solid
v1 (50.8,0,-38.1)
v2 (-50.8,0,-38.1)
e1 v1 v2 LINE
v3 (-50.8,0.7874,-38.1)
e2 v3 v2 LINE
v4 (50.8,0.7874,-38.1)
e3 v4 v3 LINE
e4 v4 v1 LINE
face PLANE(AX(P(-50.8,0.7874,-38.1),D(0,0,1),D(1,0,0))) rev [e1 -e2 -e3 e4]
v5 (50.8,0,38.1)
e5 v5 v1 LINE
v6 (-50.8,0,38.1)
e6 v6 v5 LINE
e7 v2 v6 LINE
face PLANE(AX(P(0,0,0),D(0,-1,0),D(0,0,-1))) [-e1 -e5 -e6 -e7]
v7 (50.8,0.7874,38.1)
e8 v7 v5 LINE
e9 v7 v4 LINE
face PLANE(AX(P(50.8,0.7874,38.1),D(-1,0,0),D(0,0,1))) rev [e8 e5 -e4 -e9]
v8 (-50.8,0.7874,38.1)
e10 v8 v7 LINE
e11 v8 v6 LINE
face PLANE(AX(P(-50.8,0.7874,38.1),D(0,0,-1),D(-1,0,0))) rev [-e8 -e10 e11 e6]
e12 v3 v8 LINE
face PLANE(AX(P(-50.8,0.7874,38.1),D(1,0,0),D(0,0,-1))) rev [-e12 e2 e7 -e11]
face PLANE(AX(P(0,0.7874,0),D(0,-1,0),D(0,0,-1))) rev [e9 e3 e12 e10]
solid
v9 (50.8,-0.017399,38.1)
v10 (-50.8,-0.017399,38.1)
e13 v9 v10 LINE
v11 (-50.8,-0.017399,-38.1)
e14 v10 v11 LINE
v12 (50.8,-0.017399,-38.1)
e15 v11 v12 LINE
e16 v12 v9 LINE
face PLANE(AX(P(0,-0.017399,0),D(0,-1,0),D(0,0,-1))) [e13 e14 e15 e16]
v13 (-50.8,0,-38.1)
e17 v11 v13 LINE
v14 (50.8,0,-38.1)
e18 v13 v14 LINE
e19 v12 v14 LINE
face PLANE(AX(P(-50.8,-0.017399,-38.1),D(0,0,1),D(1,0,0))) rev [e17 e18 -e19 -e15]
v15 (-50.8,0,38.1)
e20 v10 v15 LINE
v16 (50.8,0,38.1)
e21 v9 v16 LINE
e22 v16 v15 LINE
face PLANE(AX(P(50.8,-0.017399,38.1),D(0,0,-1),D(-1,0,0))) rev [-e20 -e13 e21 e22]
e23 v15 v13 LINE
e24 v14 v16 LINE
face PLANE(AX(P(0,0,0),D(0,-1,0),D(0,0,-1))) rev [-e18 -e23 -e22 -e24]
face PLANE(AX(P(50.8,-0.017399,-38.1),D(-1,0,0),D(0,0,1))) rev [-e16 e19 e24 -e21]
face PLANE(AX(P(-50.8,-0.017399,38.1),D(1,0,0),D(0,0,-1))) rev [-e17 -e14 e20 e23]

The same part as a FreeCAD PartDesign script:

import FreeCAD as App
import Part
import Sketcher
from FreeCAD import Vector
Q = App.Units.Quantity

doc = App.newDocument("Part")
body = doc.addObject("PartDesign::Body", "Body")

sketch1 = body.newObject("Sketcher::SketchObject", "Sketch")
sketch1.AttachmentSupport = (doc.getObject("XZ_Plane"), [""])
sketch1.MapMode = "FlatFace"
sketch1.addGeometry(Part.LineSegment(Vector(-51, -38, 0), Vector(-51, 38, 0)), False)
sketch1.addGeometry(Part.LineSegment(Vector(-51, 38, 0), Vector(51, 38, 0)), False)
sketch1.addGeometry(Part.LineSegment(Vector(51, 38, 0), Vector(51, -38, 0)), False)
sketch1.addGeometry(Part.LineSegment(Vector(51, -38, 0), Vector(-51, -38, 0)), False)
sketch1.addConstraint(Sketcher.Constraint("Coincident", 0, 2, 1, 1))
sketch1.addConstraint(Sketcher.Constraint("Coincident", 1, 2, 2, 1))
sketch1.addConstraint(Sketcher.Constraint("Coincident", 2, 2, 3, 1))
sketch1.addConstraint(Sketcher.Constraint("Coincident", 3, 2, 0, 1))
sketch1.addConstraint(Sketcher.Constraint("Vertical", 0))
sketch1.addConstraint(Sketcher.Constraint("Horizontal", 1))
sketch1.addConstraint(Sketcher.Constraint("Vertical", 2))
sketch1.addConstraint(Sketcher.Constraint("Horizontal", 3))
sketch1.addConstraint(Sketcher.Constraint("Symmetric", 0, 2, 2, 2, -1, 1))
sketch1.addConstraint(Sketcher.Constraint("DistanceX", 1, 1, 1, 2, Q("4 in")))
sketch1.addConstraint(Sketcher.Constraint("DistanceY", 0, 1, 0, 2, Q("3 in")))
pad1 = body.newObject("PartDesign::Pad", "Pad")
pad1.Profile = sketch1
pad1.Length = Q("0.031 in")
pad1.Reversed = True
body2 = doc.addObject("PartDesign::Body", "Body001")

sketch2 = body2.newObject("Sketcher::SketchObject", "Sketch001")
sketch2.AttachmentSupport = (doc.getObject("XZ_Plane001"), [""])
sketch2.MapMode = "FlatFace"
sketch2.addGeometry(Part.LineSegment(Vector(-51, 38, 0), Vector(-51, -38, 0)), False)
sketch2.addGeometry(Part.LineSegment(Vector(-51, -38, 0), Vector(51, -38, 0)), False)
sketch2.addGeometry(Part.LineSegment(Vector(51, -38, 0), Vector(51, 38, 0)), False)
sketch2.addGeometry(Part.LineSegment(Vector(51, 38, 0), Vector(-51, 38, 0)), False)
sketch2.addConstraint(Sketcher.Constraint("Coincident", 0, 2, 1, 1))
sketch2.addConstraint(Sketcher.Constraint("Coincident", 1, 2, 2, 1))
sketch2.addConstraint(Sketcher.Constraint("Coincident", 2, 2, 3, 1))
sketch2.addConstraint(Sketcher.Constraint("Coincident", 3, 2, 0, 1))
sketch2.addConstraint(Sketcher.Constraint("Vertical", 0))
sketch2.addConstraint(Sketcher.Constraint("Horizontal", 1))
sketch2.addConstraint(Sketcher.Constraint("Vertical", 2))
sketch2.addConstraint(Sketcher.Constraint("Horizontal", 3))
sketch2.addConstraint(Sketcher.Constraint("Symmetric", 0, 2, 2, 2, -1, 1))
sketch2.addConstraint(Sketcher.Constraint("DistanceX", 1, 1, 1, 2, Q("4 in")))
sketch2.addConstraint(Sketcher.Constraint("DistanceY", 0, 2, 0, 1, Q("3 in")))
pad2 = body2.newObject("PartDesign::Pad", "Pad001")
pad2.Profile = sketch2
pad2.Length = 0.017399

doc.recompute()
